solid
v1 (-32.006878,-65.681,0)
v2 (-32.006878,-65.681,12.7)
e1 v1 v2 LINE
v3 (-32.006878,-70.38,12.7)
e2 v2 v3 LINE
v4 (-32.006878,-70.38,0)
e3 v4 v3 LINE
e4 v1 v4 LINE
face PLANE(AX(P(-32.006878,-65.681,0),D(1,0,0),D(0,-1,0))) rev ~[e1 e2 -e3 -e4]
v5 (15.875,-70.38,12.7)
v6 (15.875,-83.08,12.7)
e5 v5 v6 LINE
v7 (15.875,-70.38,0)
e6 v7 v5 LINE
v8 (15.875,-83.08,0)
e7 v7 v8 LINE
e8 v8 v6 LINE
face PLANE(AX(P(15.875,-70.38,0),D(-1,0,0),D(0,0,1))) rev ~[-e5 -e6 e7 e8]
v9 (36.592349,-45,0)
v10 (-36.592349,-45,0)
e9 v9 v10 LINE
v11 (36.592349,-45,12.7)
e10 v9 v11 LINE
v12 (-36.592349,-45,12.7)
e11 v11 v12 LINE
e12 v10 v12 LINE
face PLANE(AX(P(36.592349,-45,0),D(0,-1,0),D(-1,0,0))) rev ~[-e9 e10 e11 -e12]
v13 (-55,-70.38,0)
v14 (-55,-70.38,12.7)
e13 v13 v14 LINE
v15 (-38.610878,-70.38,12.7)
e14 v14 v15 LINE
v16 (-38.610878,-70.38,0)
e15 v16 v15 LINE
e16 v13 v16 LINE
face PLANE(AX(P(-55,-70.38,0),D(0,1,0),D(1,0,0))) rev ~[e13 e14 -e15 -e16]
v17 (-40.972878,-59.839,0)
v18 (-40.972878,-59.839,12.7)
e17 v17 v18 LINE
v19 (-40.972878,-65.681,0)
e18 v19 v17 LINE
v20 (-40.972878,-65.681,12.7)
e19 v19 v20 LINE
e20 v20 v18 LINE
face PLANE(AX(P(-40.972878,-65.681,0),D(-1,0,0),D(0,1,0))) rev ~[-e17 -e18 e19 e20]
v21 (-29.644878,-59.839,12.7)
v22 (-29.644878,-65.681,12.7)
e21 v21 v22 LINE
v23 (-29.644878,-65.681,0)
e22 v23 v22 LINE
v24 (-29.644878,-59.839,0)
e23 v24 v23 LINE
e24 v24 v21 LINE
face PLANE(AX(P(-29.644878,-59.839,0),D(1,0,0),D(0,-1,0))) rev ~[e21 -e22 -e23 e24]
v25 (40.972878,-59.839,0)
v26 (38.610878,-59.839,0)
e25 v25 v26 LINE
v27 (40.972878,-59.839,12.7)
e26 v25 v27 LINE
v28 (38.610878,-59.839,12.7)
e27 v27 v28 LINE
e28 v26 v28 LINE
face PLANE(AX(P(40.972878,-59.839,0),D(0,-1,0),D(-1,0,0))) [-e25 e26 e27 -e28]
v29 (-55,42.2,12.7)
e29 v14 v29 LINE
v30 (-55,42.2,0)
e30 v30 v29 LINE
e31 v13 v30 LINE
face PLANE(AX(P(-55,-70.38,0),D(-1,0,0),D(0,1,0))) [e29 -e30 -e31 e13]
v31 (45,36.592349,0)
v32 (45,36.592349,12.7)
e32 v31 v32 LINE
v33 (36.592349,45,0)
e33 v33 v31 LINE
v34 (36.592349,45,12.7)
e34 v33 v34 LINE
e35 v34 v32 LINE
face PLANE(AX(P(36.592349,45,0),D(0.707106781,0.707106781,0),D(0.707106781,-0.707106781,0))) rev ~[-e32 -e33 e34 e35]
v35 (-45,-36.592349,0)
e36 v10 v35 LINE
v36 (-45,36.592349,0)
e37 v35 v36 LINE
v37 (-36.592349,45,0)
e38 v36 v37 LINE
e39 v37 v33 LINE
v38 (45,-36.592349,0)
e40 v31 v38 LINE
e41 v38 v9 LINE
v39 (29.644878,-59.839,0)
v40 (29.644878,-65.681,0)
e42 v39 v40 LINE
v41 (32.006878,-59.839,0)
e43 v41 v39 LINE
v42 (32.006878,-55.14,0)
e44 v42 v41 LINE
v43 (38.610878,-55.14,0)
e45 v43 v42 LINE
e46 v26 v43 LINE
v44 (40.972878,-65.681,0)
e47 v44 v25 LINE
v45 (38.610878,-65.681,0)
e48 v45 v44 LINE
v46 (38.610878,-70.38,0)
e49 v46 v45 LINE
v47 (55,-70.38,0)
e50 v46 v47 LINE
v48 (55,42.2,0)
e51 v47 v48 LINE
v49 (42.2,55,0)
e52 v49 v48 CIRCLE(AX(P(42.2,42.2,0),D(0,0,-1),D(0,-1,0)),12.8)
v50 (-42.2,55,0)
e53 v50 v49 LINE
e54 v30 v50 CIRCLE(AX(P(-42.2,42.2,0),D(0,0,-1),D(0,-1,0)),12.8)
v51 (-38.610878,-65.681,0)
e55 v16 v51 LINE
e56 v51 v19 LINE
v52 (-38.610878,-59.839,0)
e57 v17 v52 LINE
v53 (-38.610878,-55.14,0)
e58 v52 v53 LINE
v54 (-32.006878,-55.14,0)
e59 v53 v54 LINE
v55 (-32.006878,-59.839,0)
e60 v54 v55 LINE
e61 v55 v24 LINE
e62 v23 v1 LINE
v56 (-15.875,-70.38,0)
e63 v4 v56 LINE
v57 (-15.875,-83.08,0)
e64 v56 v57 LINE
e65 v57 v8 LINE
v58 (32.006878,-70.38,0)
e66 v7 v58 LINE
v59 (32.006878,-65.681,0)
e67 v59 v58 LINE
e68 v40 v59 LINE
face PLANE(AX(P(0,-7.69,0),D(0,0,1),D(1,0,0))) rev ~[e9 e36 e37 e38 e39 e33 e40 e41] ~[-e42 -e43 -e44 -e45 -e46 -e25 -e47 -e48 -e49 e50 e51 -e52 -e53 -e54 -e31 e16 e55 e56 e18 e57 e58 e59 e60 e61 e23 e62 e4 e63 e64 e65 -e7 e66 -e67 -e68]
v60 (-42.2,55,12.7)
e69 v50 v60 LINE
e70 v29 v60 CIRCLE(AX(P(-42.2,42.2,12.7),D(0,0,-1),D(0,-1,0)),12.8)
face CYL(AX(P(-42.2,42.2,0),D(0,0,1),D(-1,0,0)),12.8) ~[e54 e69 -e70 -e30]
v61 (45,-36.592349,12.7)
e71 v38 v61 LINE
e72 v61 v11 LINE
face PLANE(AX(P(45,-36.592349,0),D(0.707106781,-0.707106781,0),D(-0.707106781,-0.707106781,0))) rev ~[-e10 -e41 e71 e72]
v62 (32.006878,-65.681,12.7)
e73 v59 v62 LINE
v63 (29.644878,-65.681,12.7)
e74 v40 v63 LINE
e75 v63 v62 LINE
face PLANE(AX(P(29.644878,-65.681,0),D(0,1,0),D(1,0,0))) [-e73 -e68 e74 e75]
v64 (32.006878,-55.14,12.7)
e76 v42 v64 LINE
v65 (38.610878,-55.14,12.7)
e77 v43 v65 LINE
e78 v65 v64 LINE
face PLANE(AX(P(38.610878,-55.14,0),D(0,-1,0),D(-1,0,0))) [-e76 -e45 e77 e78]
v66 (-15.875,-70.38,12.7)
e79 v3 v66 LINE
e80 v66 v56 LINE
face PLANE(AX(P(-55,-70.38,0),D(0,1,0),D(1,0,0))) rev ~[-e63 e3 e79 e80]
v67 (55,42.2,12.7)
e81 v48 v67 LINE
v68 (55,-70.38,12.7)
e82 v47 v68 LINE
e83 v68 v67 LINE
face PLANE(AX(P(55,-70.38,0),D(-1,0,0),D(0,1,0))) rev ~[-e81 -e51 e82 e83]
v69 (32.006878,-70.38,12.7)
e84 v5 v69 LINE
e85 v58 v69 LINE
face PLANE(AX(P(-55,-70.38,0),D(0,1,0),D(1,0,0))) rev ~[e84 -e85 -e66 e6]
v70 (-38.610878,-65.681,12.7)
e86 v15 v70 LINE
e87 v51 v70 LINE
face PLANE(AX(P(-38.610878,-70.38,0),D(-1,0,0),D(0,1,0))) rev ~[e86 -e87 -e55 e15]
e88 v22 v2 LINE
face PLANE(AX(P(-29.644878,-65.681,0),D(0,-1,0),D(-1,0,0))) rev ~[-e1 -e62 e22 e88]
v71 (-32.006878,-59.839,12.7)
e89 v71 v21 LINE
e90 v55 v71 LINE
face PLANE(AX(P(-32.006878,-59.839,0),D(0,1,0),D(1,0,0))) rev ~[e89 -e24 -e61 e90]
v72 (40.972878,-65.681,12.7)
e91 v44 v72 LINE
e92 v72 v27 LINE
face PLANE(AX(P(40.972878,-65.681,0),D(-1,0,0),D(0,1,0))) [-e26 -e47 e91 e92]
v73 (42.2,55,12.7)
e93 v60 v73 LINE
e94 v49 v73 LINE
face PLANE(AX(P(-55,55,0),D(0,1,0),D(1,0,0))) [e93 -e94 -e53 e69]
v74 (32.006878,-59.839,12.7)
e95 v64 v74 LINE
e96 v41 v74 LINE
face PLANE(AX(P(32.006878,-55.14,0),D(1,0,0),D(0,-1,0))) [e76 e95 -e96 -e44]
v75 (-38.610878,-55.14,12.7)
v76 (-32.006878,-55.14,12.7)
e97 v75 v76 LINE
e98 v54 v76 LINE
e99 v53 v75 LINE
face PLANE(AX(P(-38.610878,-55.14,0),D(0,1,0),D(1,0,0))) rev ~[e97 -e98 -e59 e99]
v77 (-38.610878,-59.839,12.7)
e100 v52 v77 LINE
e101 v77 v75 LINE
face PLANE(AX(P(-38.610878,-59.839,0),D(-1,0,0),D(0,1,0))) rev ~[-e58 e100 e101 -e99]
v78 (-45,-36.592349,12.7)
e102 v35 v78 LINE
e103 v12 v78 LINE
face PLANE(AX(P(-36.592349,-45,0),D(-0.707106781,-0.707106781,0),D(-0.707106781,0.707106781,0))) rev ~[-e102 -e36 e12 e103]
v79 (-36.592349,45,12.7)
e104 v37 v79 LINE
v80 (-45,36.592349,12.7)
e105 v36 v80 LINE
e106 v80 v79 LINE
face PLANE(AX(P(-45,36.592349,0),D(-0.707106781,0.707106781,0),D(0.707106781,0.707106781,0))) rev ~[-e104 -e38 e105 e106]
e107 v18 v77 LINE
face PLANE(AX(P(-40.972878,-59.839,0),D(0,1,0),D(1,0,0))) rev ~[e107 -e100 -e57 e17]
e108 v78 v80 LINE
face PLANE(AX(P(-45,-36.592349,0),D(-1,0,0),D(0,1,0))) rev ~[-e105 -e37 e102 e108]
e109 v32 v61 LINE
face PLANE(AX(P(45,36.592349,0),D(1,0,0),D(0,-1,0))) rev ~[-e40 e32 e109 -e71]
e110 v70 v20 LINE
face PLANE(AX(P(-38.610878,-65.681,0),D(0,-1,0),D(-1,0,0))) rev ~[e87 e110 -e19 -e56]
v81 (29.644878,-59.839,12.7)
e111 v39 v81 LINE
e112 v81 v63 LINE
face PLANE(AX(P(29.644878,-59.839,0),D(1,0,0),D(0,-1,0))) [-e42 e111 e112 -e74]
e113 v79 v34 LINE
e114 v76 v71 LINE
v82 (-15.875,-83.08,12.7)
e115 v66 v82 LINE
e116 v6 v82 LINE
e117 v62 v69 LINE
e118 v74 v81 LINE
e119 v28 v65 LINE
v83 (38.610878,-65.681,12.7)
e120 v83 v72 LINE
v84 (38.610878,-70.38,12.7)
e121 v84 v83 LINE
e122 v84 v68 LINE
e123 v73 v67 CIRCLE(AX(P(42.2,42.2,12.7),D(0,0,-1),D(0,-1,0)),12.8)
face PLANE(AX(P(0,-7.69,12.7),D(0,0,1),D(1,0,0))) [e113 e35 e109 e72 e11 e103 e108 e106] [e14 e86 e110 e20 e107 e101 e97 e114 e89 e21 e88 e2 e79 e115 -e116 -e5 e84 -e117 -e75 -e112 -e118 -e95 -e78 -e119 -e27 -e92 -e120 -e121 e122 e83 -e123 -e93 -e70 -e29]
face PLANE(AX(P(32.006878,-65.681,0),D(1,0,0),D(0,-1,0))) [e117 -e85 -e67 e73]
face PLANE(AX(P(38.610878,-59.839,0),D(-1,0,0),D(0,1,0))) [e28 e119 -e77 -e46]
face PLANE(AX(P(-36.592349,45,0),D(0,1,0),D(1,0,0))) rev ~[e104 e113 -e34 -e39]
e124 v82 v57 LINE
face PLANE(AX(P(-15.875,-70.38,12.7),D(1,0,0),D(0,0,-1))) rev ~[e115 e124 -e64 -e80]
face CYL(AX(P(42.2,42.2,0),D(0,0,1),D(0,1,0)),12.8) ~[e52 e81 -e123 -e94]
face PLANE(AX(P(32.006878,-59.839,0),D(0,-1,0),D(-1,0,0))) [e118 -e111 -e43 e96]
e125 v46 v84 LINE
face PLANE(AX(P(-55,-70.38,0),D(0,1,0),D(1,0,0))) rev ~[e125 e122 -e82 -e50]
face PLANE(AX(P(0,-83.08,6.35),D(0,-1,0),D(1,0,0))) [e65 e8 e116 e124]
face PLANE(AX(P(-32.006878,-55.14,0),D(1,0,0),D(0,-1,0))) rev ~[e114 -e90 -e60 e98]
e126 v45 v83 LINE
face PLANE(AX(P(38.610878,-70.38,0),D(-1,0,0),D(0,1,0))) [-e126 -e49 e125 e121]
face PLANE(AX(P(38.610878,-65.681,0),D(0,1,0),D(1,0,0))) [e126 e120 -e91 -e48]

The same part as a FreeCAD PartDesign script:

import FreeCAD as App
import Part
import Sketcher
Q = App.Units.Quantity


def edges_at(feature, points):
    """Names of the edges that pass closest to the given points."""
    edges = feature.Shape.Edges
    near = lambda p: min(range(len(edges)), key=lambda i: edges[i].distToShape(Part.Vertex(*p))[0])
    return sorted({f"Edge{near(p) + 1}" for p in points})

doc = App.newDocument("Part")
body = doc.addObject("PartDesign::Body", "Body")

sketch1 = body.newObject("Sketcher::SketchObject", "Sketch")
sketch1.AttachmentSupport = (doc.getObject("XY_Plane"), [""])
sketch1.MapMode = "FlatFace"
sketch1.addGeometry([
    Part.LineSegment(App.Vector(-55, 55, 0), App.Vector(-55, -70.38, 0)),
    Part.LineSegment(App.Vector(-55, -70.38, 0), App.Vector(55, -70.38, 0)),
    Part.LineSegment(App.Vector(55, -70.38, 0), App.Vector(55, 55, 0)),
    Part.LineSegment(App.Vector(55, 55, 0), App.Vector(-55, 55, 0)),
    Part.LineSegment(App.Vector(-36.592349, -45, 0), App.Vector(-45, -36.592349, 0)),
    Part.LineSegment(App.Vector(-45, -36.592349, 0), App.Vector(-45, 36.592349, 0)),
    Part.LineSegment(App.Vector(-45, 36.592349, 0), App.Vector(-36.592349, 45, 0)),
    Part.LineSegment(App.Vector(-36.592349, 45, 0), App.Vector(36.592349, 45, 0)),
    Part.LineSegment(App.Vector(36.592349, 45, 0), App.Vector(45, 36.592349, 0)),
    Part.LineSegment(App.Vector(45, 36.592349, 0), App.Vector(45, -36.592349, 0)),
    Part.LineSegment(App.Vector(45, -36.592349, 0), App.Vector(36.592349, -45, 0)),
    Part.LineSegment(App.Vector(36.592349, -45, 0), App.Vector(-36.592349, -45, 0)),
], False)
sketch1.addConstraint([
    Sketcher.Constraint("Coincident", 0, 2, 1, 1),
    Sketcher.Constraint("Coincident", 1, 2, 2, 1),
    Sketcher.Constraint("Coincident", 2, 2, 3, 1),
    Sketcher.Constraint("Coincident", 3, 2, 0, 1),
    Sketcher.Constraint("Coincident", 4, 2, 5, 1),
    Sketcher.Constraint("Coincident", 5, 2, 6, 1),
    Sketcher.Constraint("Coincident", 6, 2, 7, 1),
    Sketcher.Constraint("Coincident", 7, 2, 8, 1),
    Sketcher.Constraint("Coincident", 8, 2, 9, 1),
    Sketcher.Constraint("Coincident", 9, 2, 10, 1),
    Sketcher.Constraint("Coincident", 10, 2, 11, 1),
    Sketcher.Constraint("Coincident", 11, 2, 4, 1),
    Sketcher.Constraint("Vertical", 0),
    Sketcher.Constraint("Horizontal", 1),
    Sketcher.Constraint("Vertical", 2),
    Sketcher.Constraint("Horizontal", 3),
    Sketcher.Constraint("Vertical", 5),
    Sketcher.Constraint("Horizontal", 7),
    Sketcher.Constraint("Vertical", 9),
    Sketcher.Constraint("Horizontal", 11),
    Sketcher.Constraint("Symmetric", 4, 2, 8, 2, -1, 1),
    Sketcher.Constraint("Symmetric", 6, 2, 10, 2, -1, 1),
    Sketcher.Constraint("Perpendicular", 4, 6),
    Sketcher.Constraint("Perpendicular", 6, 8),
    Sketcher.Constraint("Perpendicular", 8, 10),
    Sketcher.Constraint("Horizontal", 5, 2, 8, 2),
    Sketcher.Constraint("Vertical", 7, 2, 10, 2),
    Sketcher.Constraint("Equal", 11, 5),
    Sketcher.Constraint("DistanceX", 1, 1, 1, 2, Q("110 mm")),
    Sketcher.Constraint("DistanceY", 0, 2, 0, 1, Q("125.38 mm")),
    Sketcher.Constraint("DistanceX", 0, 2, -1, 1, Q("55 mm")),
    Sketcher.Constraint("DistanceY", 0, 2, -1, 1, Q("70.38 mm")),
    Sketcher.Constraint("DistanceX", 4, 2, -1, 1, Q("45 mm")),
    Sketcher.Constraint("DistanceX", 7, 1, 7, 2, Q("73.184698 mm")),
])
pad1 = body.newObject("PartDesign::Pad", "Pad")
pad1.Profile = sketch1
pad1.Length = Q("0.5 in")
doc.recompute()

fillet = body.newObject("PartDesign::Fillet", "Fillet")
fillet.Base = (pad1, edges_at(pad1, [(55, 55, 6.35), (-55, 55, 6.35)]))
fillet.Radius = 12.8

sketch2 = body.newObject("Sketcher::SketchObject", "Sketch001")
sketch2.AttachmentSupport = (doc.getObject("XY_Plane"), [""])
sketch2.MapMode = "FlatFace"
sketch2.addGeometry([
    Part.LineSegment(App.Vector(38.610878, -65.681, 0), App.Vector(38.610878, -70.38, 0)),
    Part.LineSegment(App.Vector(38.610878, -70.38, 0), App.Vector(32.006878, -70.38, 0)),
    Part.LineSegment(App.Vector(32.006878, -70.38, 0), App.Vector(32.006878, -65.681, 0)),
    Part.LineSegment(App.Vector(32.006878, -65.681, 0), App.Vector(29.644878, -65.681, 0)),
    Part.LineSegment(App.Vector(29.644878, -65.681, 0), App.Vector(29.644878, -59.839, 0)),
    Part.LineSegment(App.Vector(29.644878, -59.839, 0), App.Vector(32.006878, -59.839, 0)),
    Part.LineSegment(App.Vector(32.006878, -59.839, 0), App.Vector(32.006878, -55.14, 0)),
    Part.LineSegment(App.Vector(32.006878, -55.14, 0), App.Vector(38.610878, -55.14, 0)),
    Part.LineSegment(App.Vector(38.610878, -55.14, 0), App.Vector(38.610878, -59.839, 0)),
    Part.LineSegment(App.Vector(38.610878, -59.839, 0), App.Vector(40.972878, -59.839, 0)),
    Part.LineSegment(App.Vector(40.972878, -59.839, 0), App.Vector(40.972878, -65.681, 0)),
    Part.LineSegment(App.Vector(40.972878, -65.681, 0), App.Vector(38.610878, -65.681, 0)),
    Part.LineSegment(App.Vector(-32.006878, -65.681, 0), App.Vector(-32.006878, -70.38, 0)),
    Part.LineSegment(App.Vector(-32.006878, -70.38, 0), App.Vector(-38.610878, -70.38, 0)),
    Part.LineSegment(App.Vector(-38.610878, -70.38, 0), App.Vector(-38.610878, -65.681, 0)),
    Part.LineSegment(App.Vector(-38.610878, -65.681, 0), App.Vector(-40.972878, -65.681, 0)),
    Part.LineSegment(App.Vector(-40.972878, -65.681, 0), App.Vector(-40.972878, -59.839, 0)),
    Part.LineSegment(App.Vector(-40.972878, -59.839, 0), App.Vector(-38.610878, -59.839, 0)),
    Part.LineSegment(App.Vector(-38.610878, -59.839, 0), App.Vector(-38.610878, -55.14, 0)),
    Part.LineSegment(App.Vector(-38.610878, -55.14, 0), App.Vector(-32.006878, -55.14, 0)),
    Part.LineSegment(App.Vector(-32.006878, -55.14, 0), App.Vector(-32.006878, -59.839, 0)),
    Part.LineSegment(App.Vector(-32.006878, -59.839, 0), App.Vector(-29.644878, -59.839, 0)),
    Part.LineSegment(App.Vector(-29.644878, -59.839, 0), App.Vector(-29.644878, -65.681, 0)),
    Part.LineSegment(App.Vector(-29.644878, -65.681, 0), App.Vector(-32.006878, -65.681, 0)),
], False)
sketch2.addConstraint([
    Sketcher.Constraint("Coincident", 0, 2, 1, 1),
    Sketcher.Constraint("Coincident", 1, 2, 2, 1),
    Sketcher.Constraint("Coincident", 2, 2, 3, 1),
    Sketcher.Constraint("Coincident", 3, 2, 4, 1),
    Sketcher.Constraint("Coincident", 4, 2, 5, 1),
    Sketcher.Constraint("Coincident", 5, 2, 6, 1),
    Sketcher.Constraint("Coincident", 6, 2, 7, 1),
    Sketcher.Constraint("Coincident", 7, 2, 8, 1),
    Sketcher.Constraint("Coincident", 8, 2, 9, 1),
    Sketcher.Constraint("Coincident", 9, 2, 10, 1),
    Sketcher.Constraint("Coincident", 10, 2, 11, 1),
    Sketcher.Constraint("Coincident", 11, 2, 0, 1),
    Sketcher.Constraint("Coincident", 12, 2, 13, 1),
    Sketcher.Constraint("Coincident", 13, 2, 14, 1),
    Sketcher.Constraint("Coincident", 14, 2, 15, 1),
    Sketcher.Constraint("Coincident", 15, 2, 16, 1),
    Sketcher.Constraint("Coincident", 16, 2, 17, 1),
    Sketcher.Constraint("Coincident", 17, 2, 18, 1),
    Sketcher.Constraint("Coincident", 18, 2, 19, 1),
    Sketcher.Constraint("Coincident", 19, 2, 20, 1),
    Sketcher.Constraint("Coincident", 20, 2, 21, 1),
    Sketcher.Constraint("Coincident", 21, 2, 22, 1),
    Sketcher.Constraint("Coincident", 22, 2, 23, 1),
    Sketcher.Constraint("Coincident", 23, 2, 12, 1),
    Sketcher.Constraint("Vertical", 0),
    Sketcher.Constraint("Horizontal", 1),
    Sketcher.Constraint("Vertical", 2),
    Sketcher.Constraint("Horizontal", 3),
    Sketcher.Constraint("Vertical", 4),
    Sketcher.Constraint("Horizontal", 5),
    Sketcher.Constraint("Vertical", 6),
    Sketcher.Constraint("Horizontal", 7),
    Sketcher.Constraint("Vertical", 8),
    Sketcher.Constraint("Horizontal", 9),
    Sketcher.Constraint("Vertical", 10),
    Sketcher.Constraint("Horizontal", 11),
    Sketcher.Constraint("Vertical", 12),
    Sketcher.Constraint("Horizontal", 13),
    Sketcher.Constraint("Vertical", 14),
    Sketcher.Constraint("Horizontal", 15),
    Sketcher.Constraint("Vertical", 16),
    Sketcher.Constraint("Horizontal", 17),
    Sketcher.Constraint("Vertical", 18),
    Sketcher.Constraint("Horizontal", 19),
    Sketcher.Constraint("Vertical", 20),
    Sketcher.Constraint("Horizontal", 21),
    Sketcher.Constraint("Vertical", 22),
    Sketcher.Constraint("Horizontal", 23),
    Sketcher.Constraint("Symmetric", 1, 2, 12, 2, -2),
    Sketcher.Constraint("Symmetric", 11, 2, 14, 2, -2),
    Sketcher.Constraint("Symmetric", 9, 2, 16, 2, -2),
    Sketcher.Constraint("Symmetric", 7, 2, 18, 2, -2),
    Sketcher.Constraint("Symmetric", 5, 2, 20, 2, -2),
    Sketcher.Constraint("Symmetric", 3, 2, 22, 2, -2),
    Sketcher.Constraint("Horizontal", 5, 2, 8, 2),
    Sketcher.Constraint("Horizontal", 3, 2, 10, 2),
    Sketcher.Constraint("Vertical", 2, 2, 5, 2),
    Sketcher.Constraint("Vertical", 0, 2, 7, 2),
    Sketcher.Constraint("Equal", 5, 9),
    Sketcher.Constraint("Equal", 2, 6),
    Sketcher.Constraint("DistanceX", 1, 2, 1, 1, Q("0.26 in")),
    Sketcher.Constraint("DistanceY", 4, 1, 4, 2, Q("0.23 in")),
    Sketcher.Constraint("DistanceY", 1, 2, 6, 2, Q("0.6 in")),
    Sketcher.Constraint("DistanceX", 3, 2, 3, 1, Q("2.362 mm")),
    Sketcher.Constraint("DistanceY", 0, 2, -1, 1, Q("70.38 mm")),
    Sketcher.Constraint("DistanceX", -1, 1, 0, 2, Q("38.610878 mm")),
])
pocket1 = body.newObject("PartDesign::Pocket", "Pocket")
pocket1.Profile = sketch2
pocket1.Length = Q("0.5 in")
pocket1.Reversed = True

sketch3 = body.newObject("Sketcher::SketchObject", "Sketch002")
sketch3.AttachmentSupport = (doc.getObject("XZ_Plane"), [""])
sketch3.MapMode = "FlatFace"
sketch3.AttachmentOffset = App.Placement(App.Vector(0, 0, 70.38), App.Rotation())
sketch3.addGeometry([
    Part.LineSegment(App.Vector(15.875, 0, 0), App.Vector(15.875, 12.7, 0)),
    Part.LineSegment(App.Vector(15.875, 12.7, 0), App.Vector(-15.875, 12.7, 0)),
    Part.LineSegment(App.Vector(-15.875, 12.7, 0), App.Vector(-15.875, 0, 0)),
    Part.LineSegment(App.Vector(-15.875, 0, 0), App.Vector(15.875, 0, 0)),
], False)
sketch3.addConstraint([
    Sketcher.Constraint("Coincident", 0, 2, 1, 1),
    Sketcher.Constraint("Coincident", 1, 2, 2, 1),
    Sketcher.Constraint("Coincident", 2, 2, 3, 1),
    Sketcher.Constraint("Coincident", 3, 2, 0, 1),
    Sketcher.Constraint("Vertical", 0),
    Sketcher.Constraint("Horizontal", 1),
    Sketcher.Constraint("Vertical", 2),
    Sketcher.Constraint("Horizontal", 3),
    Sketcher.Constraint("Symmetric", 2, 2, 3, 2, -1, 1),
    Sketcher.Constraint("DistanceY", 0, 1, 0, 2, Q("0.5 in")),
    Sketcher.Constraint("DistanceX", 1, 2, 1, 1, Q("1.25 in")),
])
pad2 = body.newObject("PartDesign::Pad", "Pad001")
pad2.Profile = sketch3
pad2.Length = Q("0.5 in")

doc.recompute()
